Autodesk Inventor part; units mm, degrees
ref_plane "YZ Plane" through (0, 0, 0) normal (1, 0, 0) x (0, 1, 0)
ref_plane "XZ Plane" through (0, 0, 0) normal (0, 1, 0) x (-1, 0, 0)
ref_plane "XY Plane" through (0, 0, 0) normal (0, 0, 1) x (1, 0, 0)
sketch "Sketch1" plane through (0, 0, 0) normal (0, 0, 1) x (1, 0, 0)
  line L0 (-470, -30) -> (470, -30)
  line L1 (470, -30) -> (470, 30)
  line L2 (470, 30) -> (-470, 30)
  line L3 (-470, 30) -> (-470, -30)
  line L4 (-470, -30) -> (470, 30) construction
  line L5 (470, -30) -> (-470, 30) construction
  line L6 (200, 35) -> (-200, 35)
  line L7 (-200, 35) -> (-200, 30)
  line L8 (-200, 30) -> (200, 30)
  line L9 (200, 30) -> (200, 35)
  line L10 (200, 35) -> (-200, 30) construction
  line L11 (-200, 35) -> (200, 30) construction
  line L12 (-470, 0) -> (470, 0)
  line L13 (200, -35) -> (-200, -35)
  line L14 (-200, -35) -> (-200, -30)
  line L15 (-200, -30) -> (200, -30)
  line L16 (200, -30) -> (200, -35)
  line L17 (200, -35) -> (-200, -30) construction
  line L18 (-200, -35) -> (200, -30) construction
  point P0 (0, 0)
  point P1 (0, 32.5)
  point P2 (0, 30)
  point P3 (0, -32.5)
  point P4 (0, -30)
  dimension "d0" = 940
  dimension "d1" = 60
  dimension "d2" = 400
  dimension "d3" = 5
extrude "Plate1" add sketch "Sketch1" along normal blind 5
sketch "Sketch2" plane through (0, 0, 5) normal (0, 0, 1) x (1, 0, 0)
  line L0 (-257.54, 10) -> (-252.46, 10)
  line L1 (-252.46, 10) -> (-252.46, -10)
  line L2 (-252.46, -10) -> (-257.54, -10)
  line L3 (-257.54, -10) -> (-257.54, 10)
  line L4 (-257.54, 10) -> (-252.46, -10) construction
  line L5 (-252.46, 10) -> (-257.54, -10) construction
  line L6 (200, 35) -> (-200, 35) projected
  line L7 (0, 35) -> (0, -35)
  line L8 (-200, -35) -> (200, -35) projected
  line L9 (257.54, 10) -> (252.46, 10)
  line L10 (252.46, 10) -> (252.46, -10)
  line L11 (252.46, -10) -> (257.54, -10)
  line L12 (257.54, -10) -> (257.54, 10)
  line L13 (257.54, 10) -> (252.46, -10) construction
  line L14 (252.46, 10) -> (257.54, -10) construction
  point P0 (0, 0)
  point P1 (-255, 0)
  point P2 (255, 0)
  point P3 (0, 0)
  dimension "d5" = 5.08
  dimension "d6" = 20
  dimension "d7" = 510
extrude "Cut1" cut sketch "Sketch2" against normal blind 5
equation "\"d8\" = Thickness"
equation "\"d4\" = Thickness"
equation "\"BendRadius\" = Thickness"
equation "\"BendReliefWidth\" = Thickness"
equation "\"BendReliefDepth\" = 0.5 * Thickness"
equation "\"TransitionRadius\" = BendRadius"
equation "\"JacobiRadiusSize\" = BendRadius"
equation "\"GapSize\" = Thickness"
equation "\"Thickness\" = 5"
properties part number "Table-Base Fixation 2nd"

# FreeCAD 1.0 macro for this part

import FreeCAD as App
import Part
import Sketcher
Q = App.Units.Quantity

doc = App.newDocument("Part")
body = doc.addObject("PartDesign::Body", "Body")

sketch1 = body.newObject("Sketcher::SketchObject", "Sketch")
sketch1.AttachmentSupport = (doc.getObject("XY_Plane"), [""])
sketch1.MapMode = "FlatFace"
sketch1.addGeometry([
    Part.LineSegment(App.Vector(-470, -30, 0), App.Vector(-200, -30, 0)),
    Part.LineSegment(App.Vector(-200, -30, 0), App.Vector(-200, -35, 0)),
    Part.LineSegment(App.Vector(-200, -35, 0), App.Vector(200, -35, 0)),
    Part.LineSegment(App.Vector(200, -35, 0), App.Vector(200, -30, 0)),
    Part.LineSegment(App.Vector(200, -30, 0), App.Vector(470, -30, 0)),
    Part.LineSegment(App.Vector(470, -30, 0), App.Vector(470, 30, 0)),
    Part.LineSegment(App.Vector(470, 30, 0), App.Vector(200, 30, 0)),
    Part.LineSegment(App.Vector(200, 30, 0), App.Vector(200, 35, 0)),
    Part.LineSegment(App.Vector(200, 35, 0), App.Vector(-200, 35, 0)),
    Part.LineSegment(App.Vector(-200, 35, 0), App.Vector(-200, 30, 0)),
    Part.LineSegment(App.Vector(-200, 30, 0), App.Vector(-470, 30, 0)),
    Part.LineSegment(App.Vector(-470, 30, 0), App.Vector(-470, -30, 0)),
], False)
sketch1.addConstraint([
    Sketcher.Constraint("Coincident", 0, 2, 1, 1),
    Sketcher.Constraint("Coincident", 1, 2, 2, 1),
    Sketcher.Constraint("Coincident", 2, 2, 3, 1),
    Sketcher.Constraint("Coincident", 3, 2, 4, 1),
    Sketcher.Constraint("Coincident", 4, 2, 5, 1),
    Sketcher.Constraint("Coincident", 5, 2, 6, 1),
    Sketcher.Constraint("Coincident", 6, 2, 7, 1),
    Sketcher.Constraint("Coincident", 7, 2, 8, 1),
    Sketcher.Constraint("Coincident", 8, 2, 9, 1),
    Sketcher.Constraint("Coincident", 9, 2, 10, 1),
    Sketcher.Constraint("Coincident", 10, 2, 11, 1),
    Sketcher.Constraint("Coincident", 11, 2, 0, 1),
    Sketcher.Constraint("Horizontal", 0),
    Sketcher.Constraint("Vertical", 1),
    Sketcher.Constraint("Horizontal", 2),
    Sketcher.Constraint("Vertical", 3),
    Sketcher.Constraint("Horizontal", 4),
    Sketcher.Constraint("Vertical", 5),
    Sketcher.Constraint("Horizontal", 6),
    Sketcher.Constraint("Vertical", 7),
    Sketcher.Constraint("Horizontal", 8),
    Sketcher.Constraint("Vertical", 9),
    Sketcher.Constraint("Horizontal", 10),
    Sketcher.Constraint("Vertical", 11),
    Sketcher.Constraint("Symmetric", 0, 2, 6, 2, -1, 1),
    Sketcher.Constraint("Symmetric", 2, 2, 8, 2, -1, 1),
    Sketcher.Constraint("Symmetric", 4, 2, 10, 2, -1, 1),
    Sketcher.Constraint("Symmetric", 0, 2, 3, 2, -2),
    Sketcher.Constraint("DistanceX", 2, 1, 2, 2, Q("400 mm")),
    Sketcher.Constraint("DistanceY", 1, 2, 1, 1, Q("5 mm")),
    Sketcher.Constraint("DistanceY", 5, 1, 5, 2, Q("60 mm")),
    Sketcher.Constraint("DistanceX", 0, 1, 0, 2, Q("270 mm")),
])
pad1 = body.newObject("PartDesign::Pad", "Pad")
pad1.Profile = sketch1
pad1.Length = 5

sketch2 = body.newObject("Sketcher::SketchObject", "Sketch001")
sketch2.AttachmentSupport = (doc.getObject("XY_Plane"), [""])
sketch2.MapMode = "FlatFace"
sketch2.AttachmentOffset = App.Placement(App.Vector(0, 0, 5), App.Rotation())
sketch2.addGeometry([
    Part.LineSegment(App.Vector(-252.46, 10, 0), App.Vector(-257.54, 10, 0)),
    Part.LineSegment(App.Vector(-257.54, 10, 0), App.Vector(-257.54, -10, 0)),
    Part.LineSegment(App.Vector(-257.54, -10, 0), App.Vector(-252.46, -10, 0)),
    Part.LineSegment(App.Vector(-252.46, -10, 0), App.Vector(-252.46, 10, 0)),
    Part.LineSegment(App.Vector(257.54, -10, 0), App.Vector(257.54, 10, 0)),
    Part.LineSegment(App.Vector(257.54, 10, 0), App.Vector(252.46, 10, 0)),
    Part.LineSegment(App.Vector(252.46, 10, 0), App.Vector(252.46, -10, 0)),
    Part.LineSegment(App.Vector(252.46, -10, 0), App.Vector(257.54, -10, 0)),
], False)
sketch2.addConstraint([
    Sketcher.Constraint("Coincident", 0, 2, 1, 1),
    Sketcher.Constraint("Coincident", 1, 2, 2, 1),
    Sketcher.Constraint("Coincident", 2, 2, 3, 1),
    Sketcher.Constraint("Coincident", 3, 2, 0, 1),
    Sketcher.Constraint("Coincident", 4, 2, 5, 1),
    Sketcher.Constraint("Coincident", 5, 2, 6, 1),
    Sketcher.Constraint("Coincident", 6, 2, 7, 1),
    Sketcher.Constraint("Coincident", 7, 2, 4, 1),
    Sketcher.Constraint("Horizontal", 0),
    Sketcher.Constraint("Vertical", 1),
    Sketcher.Constraint("Horizontal", 2),
    Sketcher.Constraint("Vertical", 3),
    Sketcher.Constraint("Vertical", 4),
    Sketcher.Constraint("Horizontal", 5),
    Sketcher.Constraint("Vertical", 6),
    Sketcher.Constraint("Horizontal", 7),
    Sketcher.Constraint("Symmetric", 1, 2, 4, 2, -1, 1),
    Sketcher.Constraint("Symmetric", 3, 2, 6, 2, -1, 1),
    Sketcher.Constraint("Horizontal", 3, 2, 4, 2),
    Sketcher.Constraint("DistanceY", 1, 2, 1, 1, Q("20 mm")),
    Sketcher.Constraint("DistanceX", 3, 2, 4, 2, Q("510 mm")),
    Sketcher.Constraint("DistanceX", 0, 2, 0, 1, Q("5.08 mm")),
])
pocket1 = body.newObject("PartDesign::Pocket", "Pocket")
pocket1.Profile = sketch2
pocket1.Length = 5

doc.recompute()
